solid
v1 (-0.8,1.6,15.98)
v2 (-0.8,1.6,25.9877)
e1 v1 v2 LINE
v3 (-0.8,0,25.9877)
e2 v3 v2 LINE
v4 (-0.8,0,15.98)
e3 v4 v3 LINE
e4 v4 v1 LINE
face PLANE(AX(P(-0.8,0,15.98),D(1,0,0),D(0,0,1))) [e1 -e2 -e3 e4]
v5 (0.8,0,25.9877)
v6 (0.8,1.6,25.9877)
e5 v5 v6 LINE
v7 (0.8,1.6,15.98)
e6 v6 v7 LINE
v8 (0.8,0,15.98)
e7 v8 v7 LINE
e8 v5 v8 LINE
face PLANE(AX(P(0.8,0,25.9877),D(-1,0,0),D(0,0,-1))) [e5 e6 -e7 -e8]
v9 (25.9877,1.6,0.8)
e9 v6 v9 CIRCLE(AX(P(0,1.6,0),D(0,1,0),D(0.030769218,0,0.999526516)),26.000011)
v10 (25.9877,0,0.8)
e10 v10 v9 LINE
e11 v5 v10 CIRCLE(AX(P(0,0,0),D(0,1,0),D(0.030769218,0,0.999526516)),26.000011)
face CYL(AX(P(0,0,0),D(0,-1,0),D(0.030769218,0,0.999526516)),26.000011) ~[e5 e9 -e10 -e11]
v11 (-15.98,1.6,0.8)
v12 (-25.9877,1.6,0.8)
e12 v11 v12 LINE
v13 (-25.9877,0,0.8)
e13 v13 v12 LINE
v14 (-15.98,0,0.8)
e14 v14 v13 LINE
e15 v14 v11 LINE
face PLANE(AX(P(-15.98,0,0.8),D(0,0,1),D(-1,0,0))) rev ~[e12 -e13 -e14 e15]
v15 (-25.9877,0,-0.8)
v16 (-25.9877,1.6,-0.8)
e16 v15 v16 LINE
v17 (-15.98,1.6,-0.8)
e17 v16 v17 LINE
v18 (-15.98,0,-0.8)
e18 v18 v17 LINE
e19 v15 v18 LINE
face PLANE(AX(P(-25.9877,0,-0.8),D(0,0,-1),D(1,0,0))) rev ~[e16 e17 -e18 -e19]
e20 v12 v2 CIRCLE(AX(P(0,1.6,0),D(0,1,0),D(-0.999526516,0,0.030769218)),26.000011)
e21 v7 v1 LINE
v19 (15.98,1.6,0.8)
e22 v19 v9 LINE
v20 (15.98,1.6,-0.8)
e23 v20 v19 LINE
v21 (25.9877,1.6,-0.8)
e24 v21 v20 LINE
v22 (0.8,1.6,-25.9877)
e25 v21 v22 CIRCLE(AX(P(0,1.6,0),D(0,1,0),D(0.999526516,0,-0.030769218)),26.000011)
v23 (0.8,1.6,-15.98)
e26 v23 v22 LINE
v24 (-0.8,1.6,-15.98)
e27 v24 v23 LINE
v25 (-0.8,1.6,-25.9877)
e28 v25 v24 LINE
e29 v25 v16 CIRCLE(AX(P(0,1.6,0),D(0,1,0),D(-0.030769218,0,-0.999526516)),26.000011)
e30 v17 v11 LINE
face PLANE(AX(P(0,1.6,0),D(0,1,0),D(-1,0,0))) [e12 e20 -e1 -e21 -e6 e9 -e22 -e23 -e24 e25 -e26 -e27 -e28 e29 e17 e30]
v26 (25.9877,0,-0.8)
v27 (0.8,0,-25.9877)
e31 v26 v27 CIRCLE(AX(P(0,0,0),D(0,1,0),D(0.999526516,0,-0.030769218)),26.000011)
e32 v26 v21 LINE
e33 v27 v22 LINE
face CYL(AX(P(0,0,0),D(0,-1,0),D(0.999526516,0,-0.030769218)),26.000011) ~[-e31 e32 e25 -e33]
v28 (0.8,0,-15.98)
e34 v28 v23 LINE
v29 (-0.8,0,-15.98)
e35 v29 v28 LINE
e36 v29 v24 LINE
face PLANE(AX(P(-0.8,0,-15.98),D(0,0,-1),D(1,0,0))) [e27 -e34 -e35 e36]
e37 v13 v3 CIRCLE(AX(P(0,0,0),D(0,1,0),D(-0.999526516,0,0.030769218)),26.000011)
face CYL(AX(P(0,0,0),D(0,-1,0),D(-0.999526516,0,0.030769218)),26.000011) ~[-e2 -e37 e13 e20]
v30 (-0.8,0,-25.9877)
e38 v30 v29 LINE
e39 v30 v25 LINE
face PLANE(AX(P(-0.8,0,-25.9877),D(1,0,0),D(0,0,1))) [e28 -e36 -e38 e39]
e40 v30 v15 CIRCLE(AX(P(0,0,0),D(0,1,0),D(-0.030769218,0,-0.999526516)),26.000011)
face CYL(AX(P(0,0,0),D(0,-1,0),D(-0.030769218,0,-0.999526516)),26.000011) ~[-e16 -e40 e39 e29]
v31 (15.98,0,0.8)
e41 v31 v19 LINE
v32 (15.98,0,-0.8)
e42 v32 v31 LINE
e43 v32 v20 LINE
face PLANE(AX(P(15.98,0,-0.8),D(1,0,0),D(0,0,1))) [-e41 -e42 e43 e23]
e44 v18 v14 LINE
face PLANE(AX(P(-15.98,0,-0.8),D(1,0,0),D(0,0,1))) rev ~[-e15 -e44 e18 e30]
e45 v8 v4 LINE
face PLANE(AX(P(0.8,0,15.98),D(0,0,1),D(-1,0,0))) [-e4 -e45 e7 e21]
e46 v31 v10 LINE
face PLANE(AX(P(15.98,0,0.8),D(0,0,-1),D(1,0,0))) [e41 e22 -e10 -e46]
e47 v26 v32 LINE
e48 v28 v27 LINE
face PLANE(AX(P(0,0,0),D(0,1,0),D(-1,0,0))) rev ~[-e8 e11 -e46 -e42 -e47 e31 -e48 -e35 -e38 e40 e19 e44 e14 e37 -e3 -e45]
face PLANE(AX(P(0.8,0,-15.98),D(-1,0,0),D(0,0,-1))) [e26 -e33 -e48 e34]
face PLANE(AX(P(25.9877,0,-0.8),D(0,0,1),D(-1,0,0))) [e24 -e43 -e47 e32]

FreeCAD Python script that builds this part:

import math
import FreeCAD as App
import Part
import Sketcher

V = App.Vector
Q = App.Units.Quantity

doc = App.newDocument("Part")
params = doc.addObject("Spreadsheet::Sheet", "Params")
for row, (alias, value) in enumerate([
    ("sketch1_width", "0.394 in"),
    ("pad1_length", "0.0629921 in"),
], start=1):
    params.set(f"A{row}", alias)
    params.set(f"B{row}", "=" + value)
    params.setAlias(f"B{row}", alias)

body = doc.addObject("PartDesign::Body", "Body")

# Sketch on XZ plane
sketch1 = doc.addObject("Sketcher::SketchObject", "Sketch")
body.addObject(sketch1)
sketch1.AttachmentSupport = (doc.XZ_Plane, [""])
sketch1.MapMode = "FlatFace"
sketch1.addGeometry(Part.LineSegment(V(0.8, 16, 0), V(0.8, 26, 0)), False)
sketch1.addGeometry(Part.ArcOfCircle(Part.Circle(V(0, 0, 0), V(0, 0, 1), 26), math.radians(2), math.radians(88)), False)
sketch1.addGeometry(Part.LineSegment(V(26, 0.8, 0), V(16, 0.8, 0)), False)
sketch1.addGeometry(Part.LineSegment(V(16, 0.8, 0), V(16, -0.8, 0)), False)
sketch1.addGeometry(Part.LineSegment(V(16, -0.8, 0), V(26, -0.8, 0)), False)
sketch1.addGeometry(Part.ArcOfCircle(Part.Circle(V(0, 0, 0), V(0, 0, 1), 26), math.radians(-88), math.radians(-2)), False)
sketch1.addGeometry(Part.LineSegment(V(0.8, -26, 0), V(0.8, -16, 0)), False)
sketch1.addGeometry(Part.LineSegment(V(0.8, -16, 0), V(-0.8, -16, 0)), False)
sketch1.addGeometry(Part.LineSegment(V(-0.8, -16, 0), V(-0.8, -26, 0)), False)
sketch1.addGeometry(Part.ArcOfCircle(Part.Circle(V(0, 0, 0), V(0, 0, 1), 26), math.radians(-178), math.radians(-92)), False)
sketch1.addGeometry(Part.LineSegment(V(-26, -0.8, 0), V(-16, -0.8, 0)), False)
sketch1.addGeometry(Part.LineSegment(V(-16, -0.8, 0), V(-16, 0.8, 0)), False)
sketch1.addGeometry(Part.LineSegment(V(-16, 0.8, 0), V(-26, 0.8, 0)), False)
sketch1.addGeometry(Part.ArcOfCircle(Part.Circle(V(0, 0, 0), V(0, 0, 1), 26), math.radians(92), math.radians(178)), False)
sketch1.addGeometry(Part.LineSegment(V(-0.8, 26, 0), V(-0.8, 16, 0)), False)
sketch1.addGeometry(Part.LineSegment(V(-0.8, 16, 0), V(0.8, 16, 0)), False)
sketch1.addConstraint(Sketcher.Constraint("Coincident", 0, 2, 1, 2))
sketch1.addConstraint(Sketcher.Constraint("Coincident", 1, 1, 2, 1))
sketch1.addConstraint(Sketcher.Constraint("Coincident", 2, 2, 3, 1))
sketch1.addConstraint(Sketcher.Constraint("Coincident", 3, 2, 4, 1))
sketch1.addConstraint(Sketcher.Constraint("Coincident", 4, 2, 5, 2))
sketch1.addConstraint(Sketcher.Constraint("Coincident", 5, 1, 6, 1))
sketch1.addConstraint(Sketcher.Constraint("Coincident", 6, 2, 7, 1))
sketch1.addConstraint(Sketcher.Constraint("Coincident", 7, 2, 8, 1))
sketch1.addConstraint(Sketcher.Constraint("Coincident", 8, 2, 9, 2))
sketch1.addConstraint(Sketcher.Constraint("Coincident", 9, 1, 10, 1))
sketch1.addConstraint(Sketcher.Constraint("Coincident", 10, 2, 11, 1))
sketch1.addConstraint(Sketcher.Constraint("Coincident", 11, 2, 12, 1))
sketch1.addConstraint(Sketcher.Constraint("Coincident", 12, 2, 13, 2))
sketch1.addConstraint(Sketcher.Constraint("Coincident", 13, 1, 14, 1))
sketch1.addConstraint(Sketcher.Constraint("Coincident", 14, 2, 15, 1))
sketch1.addConstraint(Sketcher.Constraint("Coincident", 15, 2, 0, 1))
sketch1.addConstraint(Sketcher.Constraint("Vertical", 0))
sketch1.addConstraint(Sketcher.Constraint("Horizontal", 2))
sketch1.addConstraint(Sketcher.Constraint("Vertical", 3))
sketch1.addConstraint(Sketcher.Constraint("Horizontal", 4))
sketch1.addConstraint(Sketcher.Constraint("Vertical", 6))
sketch1.addConstraint(Sketcher.Constraint("Horizontal", 7))
sketch1.addConstraint(Sketcher.Constraint("Vertical", 8))
sketch1.addConstraint(Sketcher.Constraint("Horizontal", 10))
sketch1.addConstraint(Sketcher.Constraint("Vertical", 11))
sketch1.addConstraint(Sketcher.Constraint("Horizontal", 12))
sketch1.addConstraint(Sketcher.Constraint("Vertical", 14))
sketch1.addConstraint(Sketcher.Constraint("Horizontal", 15))
sketch1.addConstraint(Sketcher.Constraint("Coincident", 1, 3, -1, 1))
sketch1.addConstraint(Sketcher.Constraint("Coincident", 5, 3, -1, 1))
sketch1.addConstraint(Sketcher.Constraint("Coincident", 9, 3, -1, 1))
sketch1.addConstraint(Sketcher.Constraint("Coincident", 13, 3, -1, 1))
sketch1.addConstraint(Sketcher.Constraint("Equal", 1, 5))
sketch1.addConstraint(Sketcher.Constraint("Equal", 5, 9))
sketch1.addConstraint(Sketcher.Constraint("Equal", 9, 13))
sketch1.addConstraint(Sketcher.Constraint("Symmetric", 2, 2, 10, 2, -1, 1))
sketch1.addConstraint(Sketcher.Constraint("Symmetric", 6, 2, 14, 2, -1, 1))
sketch1.addConstraint(Sketcher.Constraint("Horizontal", 5, 1, 8, 2))
sketch1.addConstraint(Sketcher.Constraint("Horizontal", 4, 2, 9, 1))
sketch1.addConstraint(Sketcher.Constraint("Horizontal", 2, 2, 11, 2))
sketch1.addConstraint(Sketcher.Constraint("Horizontal", 0, 2, 13, 1))
sketch1.addConstraint(Sketcher.Constraint("Equal", 12, 0))
sketch1.addConstraint(Sketcher.Constraint("Equal", 15, 3))
sketch1.addConstraint(Sketcher.Constraint("Radius", 1, Q("26 mm")))
sketch1.addConstraint(Sketcher.Constraint("DistanceX", -1, 1, 0, 2, Q("0.0315 in")))
sketch1.addConstraint(Sketcher.Constraint("DistanceX", 2, 2, 2, 1, Q("0.394 in")))
sketch1.setExpression("Constraints[45]", "Params.sketch1_width")
pad1 = doc.addObject("PartDesign::Pad", "Pad")
body.addObject(pad1)
pad1.Profile = sketch1
pad1.setExpression("Length", "Params.pad1_length")
pad1.Reversed = True

doc.recompute()
